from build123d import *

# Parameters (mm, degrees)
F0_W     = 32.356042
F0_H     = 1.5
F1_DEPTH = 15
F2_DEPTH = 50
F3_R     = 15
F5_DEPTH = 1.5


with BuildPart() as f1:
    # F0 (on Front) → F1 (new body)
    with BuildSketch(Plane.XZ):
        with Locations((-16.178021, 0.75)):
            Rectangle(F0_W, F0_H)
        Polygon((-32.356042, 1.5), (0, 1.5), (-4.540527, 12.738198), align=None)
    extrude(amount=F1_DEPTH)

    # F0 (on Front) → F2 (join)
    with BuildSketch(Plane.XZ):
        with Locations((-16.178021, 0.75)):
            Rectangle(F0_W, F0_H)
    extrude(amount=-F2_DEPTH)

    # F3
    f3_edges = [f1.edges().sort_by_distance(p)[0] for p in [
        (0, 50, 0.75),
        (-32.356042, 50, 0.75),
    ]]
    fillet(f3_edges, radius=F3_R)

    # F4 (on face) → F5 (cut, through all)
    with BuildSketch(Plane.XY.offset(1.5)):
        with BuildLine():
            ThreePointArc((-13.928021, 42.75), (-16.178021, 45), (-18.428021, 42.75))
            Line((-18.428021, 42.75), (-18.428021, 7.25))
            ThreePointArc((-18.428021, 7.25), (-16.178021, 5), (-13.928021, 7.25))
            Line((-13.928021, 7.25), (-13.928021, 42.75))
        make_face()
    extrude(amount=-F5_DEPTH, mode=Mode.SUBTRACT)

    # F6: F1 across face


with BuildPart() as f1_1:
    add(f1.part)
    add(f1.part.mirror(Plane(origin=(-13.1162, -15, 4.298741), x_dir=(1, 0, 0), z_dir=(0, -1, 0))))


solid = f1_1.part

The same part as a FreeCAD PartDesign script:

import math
import FreeCAD as App
import Part
import Sketcher

V = App.Vector
Q = App.Units.Quantity


def edges_at(feature, points):
    """Names of the edges that pass closest to the given points."""
    edges = feature.Shape.Edges
    near = lambda p: min(range(len(edges)), key=lambda i: edges[i].distToShape(Part.Vertex(*p))[0])
    return sorted({f"Edge{near(p) + 1}" for p in points})

doc = App.newDocument("Part")
params = doc.addObject("Spreadsheet::Sheet", "Params")
for row, (alias, value) in enumerate([
    ("sketch1_length", "29.999999 mm"),
    ("sketch1_height", "1.5 mm"),
    ("pad1_length", "15 mm"),
    ("sketch2_height", "1.5 mm"),
    ("pad2_length", "50 mm"),
    ("fillet_radius", "15 mm"),
    ("sketch3_radius", "2.25 mm"),
    ("sketch3_height", "35.5 mm"),
], start=1):
    params.set(f"A{row}", alias)
    params.set(f"B{row}", "=" + value)
    params.setAlias(f"B{row}", alias)

body = doc.addObject("PartDesign::Body", "Body")

# Sketch on XZ plane
sketch1 = body.newObject("Sketcher::SketchObject", "Sketch")
sketch1.AttachmentSupport = (doc.getObject("XZ_Plane"), [""])
sketch1.MapMode = "FlatFace"
sketch1.addGeometry([
    Part.LineSegment(V(-32.4, 1.5, 0), V(-32.4, 0, 0)),  # 0
    Part.LineSegment(V(-32.4, 0, 0), V(0, 0, 0)),  # 1
    Part.LineSegment(V(0, 0, 0), V(0, 1.5, 0)),  # 2
    Part.LineSegment(V(0, 1.5, 0), V(-4.5, 12.7, 0)),  # 3
    Part.LineSegment(V(-4.5, 12.7, 0), V(-32.4, 1.5, 0)),  # 4
], False)
sketch1.addConstraint([
    Sketcher.Constraint("Coincident", 0, 2, 1, 1),
    Sketcher.Constraint("Coincident", 1, 2, 2, 1),
    Sketcher.Constraint("Coincident", 2, 2, 3, 1),
    Sketcher.Constraint("Coincident", 3, 2, 4, 1),
    Sketcher.Constraint("Coincident", 4, 2, 0, 1),
    Sketcher.Constraint("Vertical", 0),
    Sketcher.Constraint("Horizontal", 1),
    Sketcher.Constraint("Vertical", 2),
    Sketcher.Constraint("Coincident", 1, 2, -1, 1),
    Sketcher.Constraint("Perpendicular", 3, 4),
    Sketcher.Constraint("Horizontal", 2, 2, 4, 2),
    Sketcher.Constraint("Angle", 3, Q("112.000001 deg")),
    Sketcher.Constraint("Distance", 4, 29.999999),
    Sketcher.Constraint("DistanceY", 0, 2, 0, 1, 1.5),
])
sketch1.setExpression("Constraints[12]", "Params.sketch1_length")
sketch1.setExpression("Constraints[13]", "Params.sketch1_height")
pad1 = body.newObject("PartDesign::Pad", "Pad")
pad1.Profile = sketch1
pad1.setExpression("Length", "Params.pad1_length")

# Sketch on XZ plane
sketch2 = body.newObject("Sketcher::SketchObject", "Sketch001")
sketch2.AttachmentSupport = (doc.getObject("XZ_Plane"), [""])
sketch2.MapMode = "FlatFace"
sketch2.addGeometry([
    Part.LineSegment(V(-32.4, 1.5, 0), V(-32.4, 0, 0)),
    Part.LineSegment(V(-32.4, 0, 0), V(0, 0, 0)),
    Part.LineSegment(V(0, 0, 0), V(0, 1.5, 0)),
    Part.LineSegment(V(0, 1.5, 0), V(-32.4, 1.5, 0)),
], False)
sketch2.addConstraint([
    Sketcher.Constraint("Coincident", 0, 2, 1, 1),
    Sketcher.Constraint("Coincident", 1, 2, 2, 1),
    Sketcher.Constraint("Coincident", 2, 2, 3, 1),
    Sketcher.Constraint("Coincident", 3, 2, 0, 1),
    Sketcher.Constraint("Vertical", 0),
    Sketcher.Constraint("Horizontal", 1),
    Sketcher.Constraint("Vertical", 2),
    Sketcher.Constraint("Horizontal", 3),
    Sketcher.Constraint("Coincident", 1, 2, -1, 1),
    Sketcher.Constraint("DistanceY", 0, 2, 0, 1, 1.5),
    Sketcher.Constraint("DistanceX", 1, 1, 1, 2, 32.356042),
])
sketch2.setExpression("Constraints[9]", "Params.sketch2_height")
pad2 = body.newObject("PartDesign::Pad", "Pad001")
pad2.Profile = sketch2
pad2.setExpression("Length", "Params.pad2_length")
pad2.Reversed = True
doc.recompute()

fillet = body.newObject("PartDesign::Fillet", "Fillet")
fillet.Base = (pad2, edges_at(pad2, [(0, 50, 0.75), (-32.356, 50, 0.75)]))
fillet.setExpression("Radius", "Params.fillet_radius")

# Sketch on XY plane
sketch3 = body.newObject("Sketcher::SketchObject", "Sketch002")
sketch3.AttachmentSupport = (doc.getObject("XY_Plane"), [""])
sketch3.MapMode = "FlatFace"
sketch3.AttachmentOffset = App.Placement(V(0, 0, 1.5), App.Rotation())
sketch3.addGeometry([
    Part.ArcOfCircle(Part.Circle(V(-16.2, 42.8, 0), V(0, 0, 1), 2.2), math.radians(0), math.radians(180)),
    Part.LineSegment(V(-18.4, 42.8, 0), V(-18.4, 7.2, 0)),
    Part.ArcOfCircle(Part.Circle(V(-16.2, 7.2, 0), V(0, 0, 1), 2.2), math.radians(180), math.radians(360)),
    Part.LineSegment(V(-13.9, 7.2, 0), V(-13.9, 42.8, 0)),
], False)
sketch3.addConstraint([
    Sketcher.Constraint("Tangent", 0, 2, 1, 1),
    Sketcher.Constraint("Tangent", 1, 2, 2, 1),
    Sketcher.Constraint("Tangent", 2, 2, 3, 1),
    Sketcher.Constraint("Tangent", 3, 2, 0, 1),
    Sketcher.Constraint("Vertical", 1),
    Sketcher.Constraint("Vertical", 3),
    Sketcher.Constraint("Radius", 0, 2.25),
    Sketcher.Constraint("DistanceY", 1, 2, 1, 1, 35.5),
    Sketcher.Constraint("DistanceY", -1, 1, 0, 3, 42.75),
    Sketcher.Constraint("DistanceX", 0, 3, -1, 1, 16.178021),
])
sketch3.setExpression("Constraints[6]", "Params.sketch3_radius")
sketch3.setExpression("Constraints[7]", "Params.sketch3_height")
pocket1 = body.newObject("PartDesign::Pocket", "Pocket")
pocket1.Profile = sketch3
pocket1.Type = "ThroughAll"
body2 = doc.addObject("PartDesign::Body", "Body001")
doc.recompute()

body2.BaseFeature = body
doc.recompute()

mirroring = doc.addObject("Part::Mirroring", "Mirroring")
mirroring.Source = body
mirroring.Base = V(-13.1162, -15, 4.298741)
mirroring.Normal = V(0, -1, 0)
body3 = doc.addObject("PartDesign::Body", "Body002")
body3.BaseFeature = mirroring
boolean = body2.newObject("PartDesign::Boolean", "Boolean")
boolean.Type = "Fuse"
boolean.addObjects([body3])
doc.recompute()
mirroring.Visibility = False

doc.recompute()
